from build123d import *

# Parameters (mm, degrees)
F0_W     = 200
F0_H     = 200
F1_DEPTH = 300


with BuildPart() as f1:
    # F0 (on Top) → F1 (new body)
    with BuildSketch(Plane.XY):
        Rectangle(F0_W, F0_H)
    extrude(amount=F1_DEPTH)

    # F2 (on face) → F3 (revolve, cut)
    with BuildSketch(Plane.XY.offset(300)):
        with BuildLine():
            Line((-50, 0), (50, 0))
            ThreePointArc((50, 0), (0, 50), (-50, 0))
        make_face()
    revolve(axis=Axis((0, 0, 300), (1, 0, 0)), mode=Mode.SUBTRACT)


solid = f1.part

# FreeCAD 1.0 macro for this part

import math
import FreeCAD as App
import Part
import Sketcher

doc = App.newDocument("Part")
body = doc.addObject("PartDesign::Body", "Body")

# Sketch on XY plane
sketch1 = doc.addObject("Sketcher::SketchObject", "Sketch")
body.addObject(sketch1)
sketch1.AttachmentSupport = (doc.XY_Plane, [""])
sketch1.MapMode = "FlatFace"
sketch1.addGeometry(Part.LineSegment(App.Vector(-100, 100, 0), App.Vector(-100, -100, 0)), False)
sketch1.addGeometry(Part.LineSegment(App.Vector(-100, -100, 0), App.Vector(100, -100, 0)), False)
sketch1.addGeometry(Part.LineSegment(App.Vector(100, -100, 0), App.Vector(100, 100, 0)), False)
sketch1.addGeometry(Part.LineSegment(App.Vector(100, 100, 0), App.Vector(-100, 100, 0)), False)
sketch1.addConstraint(Sketcher.Constraint("Coincident", 0, 2, 1, 1))
sketch1.addConstraint(Sketcher.Constraint("Coincident", 1, 2, 2, 1))
sketch1.addConstraint(Sketcher.Constraint("Coincident", 2, 2, 3, 1))
sketch1.addConstraint(Sketcher.Constraint("Coincident", 3, 2, 0, 1))
sketch1.addConstraint(Sketcher.Constraint("Vertical", 0))
sketch1.addConstraint(Sketcher.Constraint("Horizontal", 1))
sketch1.addConstraint(Sketcher.Constraint("Vertical", 2))
sketch1.addConstraint(Sketcher.Constraint("Horizontal", 3))
sketch1.addConstraint(Sketcher.Constraint("Symmetric", 0, 2, 2, 2, -1, 1))
sketch1.addConstraint(Sketcher.Constraint("Equal", 3, 0))
sketch1.addConstraint(Sketcher.Constraint("DistanceX", 1, 1, 1, 2, 200.0))
pad1 = doc.addObject("PartDesign::Pad", "Pad")
body.addObject(pad1)
pad1.Profile = sketch1
pad1.Length = 300

# Sketch on XY plane
sketch2 = doc.addObject("Sketcher::SketchObject", "Sketch001")
body.addObject(sketch2)
sketch2.AttachmentSupport = (doc.XY_Plane, [""])
sketch2.MapMode = "FlatFace"
sketch2.AttachmentOffset = App.Placement(App.Vector(0, 0, 300), App.Rotation())
sketch2.addGeometry(Part.LineSegment(App.Vector(-50, 0, 0), App.Vector(50, 0, 0)), False)
sketch2.addGeometry(Part.ArcOfCircle(Part.Circle(App.Vector(0, 0, 0), App.Vector(0, 0, 1), 50), math.radians(0), math.radians(180)), False)
sketch2.addConstraint(Sketcher.Constraint("Coincident", 0, 1, 1, 2))
sketch2.addConstraint(Sketcher.Constraint("Coincident", 1, 1, 0, 2))
sketch2.addConstraint(Sketcher.Constraint("Horizontal", 0))
sketch2.addConstraint(Sketcher.Constraint("Coincident", 1, 3, -1, 1))
sketch2.addConstraint(Sketcher.Constraint("PointOnObject", 0, 1, -1))
sketch2.addConstraint(Sketcher.Constraint("Radius", 1, 50.0))
groove = doc.addObject("PartDesign::Groove", "Groove")
body.addObject(groove)
groove.Profile = sketch2
groove.ReferenceAxis = (sketch2, ["H_Axis"])
groove.Angle = 360

doc.recompute()
